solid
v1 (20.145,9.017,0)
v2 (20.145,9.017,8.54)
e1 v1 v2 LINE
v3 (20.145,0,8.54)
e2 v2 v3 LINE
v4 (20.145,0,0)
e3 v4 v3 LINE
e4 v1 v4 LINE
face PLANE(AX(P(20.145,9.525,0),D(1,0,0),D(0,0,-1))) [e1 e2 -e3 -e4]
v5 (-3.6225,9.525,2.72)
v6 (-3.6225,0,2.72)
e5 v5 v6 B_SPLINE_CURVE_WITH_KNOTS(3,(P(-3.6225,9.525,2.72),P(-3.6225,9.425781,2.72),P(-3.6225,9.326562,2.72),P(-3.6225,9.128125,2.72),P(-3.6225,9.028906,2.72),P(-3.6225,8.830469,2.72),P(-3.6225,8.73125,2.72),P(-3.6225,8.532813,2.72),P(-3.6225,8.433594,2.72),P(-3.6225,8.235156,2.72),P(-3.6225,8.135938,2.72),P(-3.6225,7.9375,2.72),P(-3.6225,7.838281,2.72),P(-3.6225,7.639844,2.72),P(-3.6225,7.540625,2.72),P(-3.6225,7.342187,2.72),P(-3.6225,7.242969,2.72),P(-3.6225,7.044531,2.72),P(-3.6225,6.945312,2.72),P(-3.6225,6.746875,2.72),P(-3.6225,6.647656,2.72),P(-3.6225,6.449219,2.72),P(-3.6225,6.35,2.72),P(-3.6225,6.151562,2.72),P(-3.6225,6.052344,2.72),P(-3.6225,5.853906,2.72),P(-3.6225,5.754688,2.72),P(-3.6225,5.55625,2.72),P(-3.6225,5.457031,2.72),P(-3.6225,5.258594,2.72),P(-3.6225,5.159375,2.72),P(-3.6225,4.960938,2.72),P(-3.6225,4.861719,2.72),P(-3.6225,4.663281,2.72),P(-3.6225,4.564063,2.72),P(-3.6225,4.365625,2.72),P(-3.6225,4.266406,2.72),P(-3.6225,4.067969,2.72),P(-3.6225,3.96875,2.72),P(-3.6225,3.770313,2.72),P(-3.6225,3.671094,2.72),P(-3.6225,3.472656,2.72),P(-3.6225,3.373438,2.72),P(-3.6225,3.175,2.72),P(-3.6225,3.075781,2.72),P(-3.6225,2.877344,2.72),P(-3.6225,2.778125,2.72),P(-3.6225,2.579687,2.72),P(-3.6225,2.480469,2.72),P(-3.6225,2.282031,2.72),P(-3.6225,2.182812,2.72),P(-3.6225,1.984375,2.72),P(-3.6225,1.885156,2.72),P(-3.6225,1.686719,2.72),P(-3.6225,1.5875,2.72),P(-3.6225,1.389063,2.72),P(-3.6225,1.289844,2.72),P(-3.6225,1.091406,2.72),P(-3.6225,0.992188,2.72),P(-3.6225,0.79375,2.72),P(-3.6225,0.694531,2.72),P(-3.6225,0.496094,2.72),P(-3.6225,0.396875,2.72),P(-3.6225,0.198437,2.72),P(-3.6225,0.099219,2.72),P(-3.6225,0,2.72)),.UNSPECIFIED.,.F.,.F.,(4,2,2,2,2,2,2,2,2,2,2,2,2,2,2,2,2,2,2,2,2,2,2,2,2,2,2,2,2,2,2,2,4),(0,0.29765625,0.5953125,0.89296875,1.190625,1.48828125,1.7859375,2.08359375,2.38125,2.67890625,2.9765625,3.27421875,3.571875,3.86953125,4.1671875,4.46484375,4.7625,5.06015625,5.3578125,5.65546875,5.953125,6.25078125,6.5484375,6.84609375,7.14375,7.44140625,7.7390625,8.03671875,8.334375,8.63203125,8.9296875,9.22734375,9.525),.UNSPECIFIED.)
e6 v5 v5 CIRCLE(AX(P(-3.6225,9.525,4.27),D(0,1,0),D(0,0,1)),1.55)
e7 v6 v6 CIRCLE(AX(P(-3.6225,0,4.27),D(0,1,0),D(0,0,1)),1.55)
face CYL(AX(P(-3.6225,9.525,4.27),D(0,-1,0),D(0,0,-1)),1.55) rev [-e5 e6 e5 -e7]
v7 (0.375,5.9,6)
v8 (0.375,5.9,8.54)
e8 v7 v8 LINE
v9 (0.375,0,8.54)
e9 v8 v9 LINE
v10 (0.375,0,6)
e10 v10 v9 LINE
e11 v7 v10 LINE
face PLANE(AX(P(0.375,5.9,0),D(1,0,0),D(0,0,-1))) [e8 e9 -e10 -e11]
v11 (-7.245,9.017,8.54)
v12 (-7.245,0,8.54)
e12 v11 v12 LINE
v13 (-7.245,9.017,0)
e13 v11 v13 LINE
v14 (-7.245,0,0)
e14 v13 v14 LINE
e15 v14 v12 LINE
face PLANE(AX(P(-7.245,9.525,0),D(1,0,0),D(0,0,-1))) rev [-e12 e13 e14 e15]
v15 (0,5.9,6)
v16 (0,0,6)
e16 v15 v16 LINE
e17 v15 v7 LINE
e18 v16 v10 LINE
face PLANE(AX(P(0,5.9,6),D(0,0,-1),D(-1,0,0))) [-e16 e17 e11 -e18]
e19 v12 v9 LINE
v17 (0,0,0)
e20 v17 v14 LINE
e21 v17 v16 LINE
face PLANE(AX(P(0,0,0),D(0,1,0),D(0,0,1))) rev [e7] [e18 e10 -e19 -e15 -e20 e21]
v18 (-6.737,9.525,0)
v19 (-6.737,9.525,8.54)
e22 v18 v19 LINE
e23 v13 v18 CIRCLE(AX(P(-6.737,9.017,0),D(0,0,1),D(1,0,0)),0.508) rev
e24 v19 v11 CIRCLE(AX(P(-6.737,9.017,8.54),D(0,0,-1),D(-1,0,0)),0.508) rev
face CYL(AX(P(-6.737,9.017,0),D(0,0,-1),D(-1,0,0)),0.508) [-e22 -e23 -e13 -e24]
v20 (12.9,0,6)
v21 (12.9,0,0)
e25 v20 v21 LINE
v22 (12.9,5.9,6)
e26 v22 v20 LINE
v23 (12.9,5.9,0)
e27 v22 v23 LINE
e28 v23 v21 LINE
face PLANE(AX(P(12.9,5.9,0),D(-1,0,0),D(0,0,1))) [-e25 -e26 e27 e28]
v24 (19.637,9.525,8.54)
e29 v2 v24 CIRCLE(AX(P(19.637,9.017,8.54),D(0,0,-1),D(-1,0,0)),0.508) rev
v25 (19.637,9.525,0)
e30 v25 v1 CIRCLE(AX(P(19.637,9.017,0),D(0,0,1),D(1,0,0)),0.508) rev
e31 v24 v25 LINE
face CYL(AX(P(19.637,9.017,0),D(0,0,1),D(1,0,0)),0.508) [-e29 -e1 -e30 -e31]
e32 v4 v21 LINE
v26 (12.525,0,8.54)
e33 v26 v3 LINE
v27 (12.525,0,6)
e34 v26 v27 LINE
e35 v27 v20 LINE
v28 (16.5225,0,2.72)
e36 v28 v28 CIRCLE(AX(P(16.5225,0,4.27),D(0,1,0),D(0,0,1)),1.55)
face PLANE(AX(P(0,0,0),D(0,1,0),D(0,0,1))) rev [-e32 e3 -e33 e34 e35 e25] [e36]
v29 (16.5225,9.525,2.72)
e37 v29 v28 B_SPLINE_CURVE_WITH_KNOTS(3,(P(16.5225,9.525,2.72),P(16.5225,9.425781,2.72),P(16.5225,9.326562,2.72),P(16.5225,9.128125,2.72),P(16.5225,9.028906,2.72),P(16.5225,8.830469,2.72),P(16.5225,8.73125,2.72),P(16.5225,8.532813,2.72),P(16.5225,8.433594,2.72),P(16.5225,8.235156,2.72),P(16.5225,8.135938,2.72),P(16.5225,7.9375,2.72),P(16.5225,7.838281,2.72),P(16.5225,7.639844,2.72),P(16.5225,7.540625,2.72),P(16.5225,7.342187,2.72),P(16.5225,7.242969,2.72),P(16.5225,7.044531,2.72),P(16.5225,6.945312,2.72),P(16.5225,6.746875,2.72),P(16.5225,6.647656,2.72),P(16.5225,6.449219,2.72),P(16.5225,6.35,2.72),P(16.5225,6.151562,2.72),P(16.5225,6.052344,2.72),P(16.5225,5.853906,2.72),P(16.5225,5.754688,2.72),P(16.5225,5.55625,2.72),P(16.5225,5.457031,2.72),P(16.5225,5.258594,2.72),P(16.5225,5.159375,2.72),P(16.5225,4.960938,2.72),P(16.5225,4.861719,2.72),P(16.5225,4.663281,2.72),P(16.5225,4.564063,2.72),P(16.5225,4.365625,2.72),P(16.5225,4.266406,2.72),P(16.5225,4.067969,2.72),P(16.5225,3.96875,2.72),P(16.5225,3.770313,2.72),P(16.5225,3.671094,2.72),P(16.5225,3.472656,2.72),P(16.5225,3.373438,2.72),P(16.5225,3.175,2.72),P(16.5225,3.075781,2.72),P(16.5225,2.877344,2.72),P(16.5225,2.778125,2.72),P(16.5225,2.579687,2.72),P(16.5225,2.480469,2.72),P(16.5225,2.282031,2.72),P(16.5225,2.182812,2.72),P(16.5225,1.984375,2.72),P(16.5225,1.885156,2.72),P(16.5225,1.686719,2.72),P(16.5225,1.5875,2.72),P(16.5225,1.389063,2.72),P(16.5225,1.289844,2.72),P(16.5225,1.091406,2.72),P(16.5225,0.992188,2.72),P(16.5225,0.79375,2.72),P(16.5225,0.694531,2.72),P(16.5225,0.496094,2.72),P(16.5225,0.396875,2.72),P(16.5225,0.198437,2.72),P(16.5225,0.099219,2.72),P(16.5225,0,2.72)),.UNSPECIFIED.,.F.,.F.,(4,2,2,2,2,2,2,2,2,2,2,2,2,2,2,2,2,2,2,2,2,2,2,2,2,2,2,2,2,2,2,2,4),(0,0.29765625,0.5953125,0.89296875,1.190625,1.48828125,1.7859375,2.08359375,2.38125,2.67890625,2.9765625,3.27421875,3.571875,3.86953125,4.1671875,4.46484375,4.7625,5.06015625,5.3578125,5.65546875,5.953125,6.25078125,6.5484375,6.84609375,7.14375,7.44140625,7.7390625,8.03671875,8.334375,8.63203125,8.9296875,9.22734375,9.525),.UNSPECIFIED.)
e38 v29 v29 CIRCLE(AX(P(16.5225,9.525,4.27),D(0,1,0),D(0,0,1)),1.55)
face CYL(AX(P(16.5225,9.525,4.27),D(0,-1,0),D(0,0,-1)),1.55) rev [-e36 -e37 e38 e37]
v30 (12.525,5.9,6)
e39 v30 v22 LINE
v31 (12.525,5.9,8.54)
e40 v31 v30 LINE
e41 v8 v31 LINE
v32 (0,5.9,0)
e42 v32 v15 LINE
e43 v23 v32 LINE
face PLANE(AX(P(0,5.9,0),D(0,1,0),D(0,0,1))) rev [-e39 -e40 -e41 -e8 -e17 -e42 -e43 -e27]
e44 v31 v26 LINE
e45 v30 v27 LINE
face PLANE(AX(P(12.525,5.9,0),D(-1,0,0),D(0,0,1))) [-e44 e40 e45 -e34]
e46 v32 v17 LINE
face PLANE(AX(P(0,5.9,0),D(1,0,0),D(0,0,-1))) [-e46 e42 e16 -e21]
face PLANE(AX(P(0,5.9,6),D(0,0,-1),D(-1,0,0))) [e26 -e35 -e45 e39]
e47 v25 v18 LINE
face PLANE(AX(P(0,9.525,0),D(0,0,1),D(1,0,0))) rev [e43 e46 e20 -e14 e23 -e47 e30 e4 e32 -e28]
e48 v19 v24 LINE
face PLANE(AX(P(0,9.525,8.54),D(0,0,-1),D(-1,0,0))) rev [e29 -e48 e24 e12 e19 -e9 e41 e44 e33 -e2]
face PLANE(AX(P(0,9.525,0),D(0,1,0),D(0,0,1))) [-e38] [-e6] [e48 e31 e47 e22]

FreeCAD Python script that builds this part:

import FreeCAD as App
import Part
import Sketcher

V = App.Vector


def edges_at(feature, points):
    """Names of the edges that pass closest to the given points."""
    edges = feature.Shape.Edges
    near = lambda p: min(range(len(edges)), key=lambda i: edges[i].distToShape(Part.Vertex(*p))[0])
    return sorted({f"Edge{near(p) + 1}" for p in points})

doc = App.newDocument("Part")
body = doc.addObject("PartDesign::Body", "Body")

sketch1 = body.newObject("Sketcher::SketchObject", "Sketch")
sketch1.AttachmentSupport = (doc.getObject("XZ_Plane"), [""])
sketch1.MapMode = "FlatFace"
sketch1.addGeometry([
    Part.LineSegment(V(-7.2, 0, 0), V(-7.2, 8.5, 0)),
    Part.LineSegment(V(-7.2, 8.5, 0), V(20.1, 8.5, 0)),
    Part.LineSegment(V(20.1, 8.5, 0), V(20.1, 0, 0)),
    Part.LineSegment(V(20.1, 0, 0), V(-7.2, 0, 0)),
    Part.Circle(V(-3.6, 4.3, 0), V(0, 0, 1), 1.6),
    Part.Circle(V(16.5, 4.3, 0), V(0, 0, 1), 1.6),
], False)
sketch1.addConstraint([
    Sketcher.Constraint("Coincident", 0, 2, 1, 1),
    Sketcher.Constraint("Coincident", 1, 2, 2, 1),
    Sketcher.Constraint("Coincident", 2, 2, 3, 1),
    Sketcher.Constraint("Coincident", 3, 2, 0, 1),
    Sketcher.Constraint("Vertical", 0),
    Sketcher.Constraint("Horizontal", 1),
    Sketcher.Constraint("Vertical", 2),
    Sketcher.Constraint("Horizontal", 3),
    Sketcher.Constraint("Equal", 4, 5),
    Sketcher.Constraint("PointOnObject", 2, 2, -1),
    Sketcher.Constraint("Horizontal", 4, 3, 5, 3),
    Sketcher.Constraint("Diameter", 4, 3.1),
    Sketcher.Constraint("DistanceX", 1, 1, 1, 2, 27.39),
    Sketcher.Constraint("DistanceY", 0, 1, 0, 2, 8.54),
    Sketcher.Constraint("DistanceY", -1, 1, 4, 3, 4.27),
    Sketcher.Constraint("DistanceX", 0, 2, -1, 1, 7.245),
    Sketcher.Constraint("DistanceX", 4, 3, 5, 3, 20.145),
    Sketcher.Constraint("DistanceX", 4, 3, -1, 1, 3.6225),
])
pad1 = body.newObject("PartDesign::Pad", "Pad")
pad1.Profile = sketch1
pad1.Length = 9.525
pad1.Reversed = True

sketch2 = body.newObject("Sketcher::SketchObject", "Sketch001")
sketch2.AttachmentSupport = (doc.getObject("XZ_Plane"), [""])
sketch2.MapMode = "FlatFace"
sketch2.addGeometry([
    Part.LineSegment(V(12.9, 6, 0), V(12.9, 0, 0)),
    Part.LineSegment(V(12.9, 0, 0), V(0, 0, 0)),
    Part.LineSegment(V(0, 0, 0), V(0, 6, 0)),
    Part.LineSegment(V(0, 6, 0), V(0.38, 6, 0)),
    Part.LineSegment(V(0.38, 6, 0), V(0.38, 8.54, 0)),
    Part.LineSegment(V(0.38, 8.54, 0), V(12.53, 8.54, 0)),
    Part.LineSegment(V(12.53, 8.54, 0), V(12.53, 6, 0)),
    Part.LineSegment(V(12.53, 6, 0), V(12.9, 6, 0)),
], False)
sketch2.addConstraint([
    Sketcher.Constraint("Coincident", 0, 2, 1, 1),
    Sketcher.Constraint("Coincident", 1, 2, 2, 1),
    Sketcher.Constraint("Coincident", 2, 2, 3, 1),
    Sketcher.Constraint("Coincident", 3, 2, 4, 1),
    Sketcher.Constraint("Coincident", 4, 2, 5, 1),
    Sketcher.Constraint("Coincident", 5, 2, 6, 1),
    Sketcher.Constraint("Coincident", 6, 2, 7, 1),
    Sketcher.Constraint("Coincident", 7, 2, 0, 1),
    Sketcher.Constraint("Vertical", 0),
    Sketcher.Constraint("Horizontal", 1),
    Sketcher.Constraint("Vertical", 2),
    Sketcher.Constraint("Horizontal", 3),
    Sketcher.Constraint("Vertical", 4),
    Sketcher.Constraint("Horizontal", 5),
    Sketcher.Constraint("Vertical", 6),
    Sketcher.Constraint("Horizontal", 7),
    Sketcher.Constraint("Coincident", 1, 2, -1, 1),
    Sketcher.Constraint("Horizontal", 3, 2, 6, 2),
    Sketcher.Constraint("Equal", 3, 7),
    Sketcher.Constraint("DistanceY", 0, 2, 0, 1, 6.0),
    Sketcher.Constraint("DistanceX", 1, 2, 1, 1, 12.9),
    Sketcher.Constraint("DistanceX", 5, 1, 5, 2, 12.15),
    Sketcher.Constraint("DistanceY", 4, 1, 4, 2, 2.54),
])
pocket1 = body.newObject("PartDesign::Pocket", "Pocket")
pocket1.Profile = sketch2
pocket1.Length = 5.9
doc.recompute()

fillet = body.newObject("PartDesign::Fillet", "Fillet")
fillet.Base = (pocket1, edges_at(pocket1, [(-7.245, 9.525, 4.27), (20.145, 9.525, 4.27)]))
fillet.Radius = 0.508

doc.recompute()
